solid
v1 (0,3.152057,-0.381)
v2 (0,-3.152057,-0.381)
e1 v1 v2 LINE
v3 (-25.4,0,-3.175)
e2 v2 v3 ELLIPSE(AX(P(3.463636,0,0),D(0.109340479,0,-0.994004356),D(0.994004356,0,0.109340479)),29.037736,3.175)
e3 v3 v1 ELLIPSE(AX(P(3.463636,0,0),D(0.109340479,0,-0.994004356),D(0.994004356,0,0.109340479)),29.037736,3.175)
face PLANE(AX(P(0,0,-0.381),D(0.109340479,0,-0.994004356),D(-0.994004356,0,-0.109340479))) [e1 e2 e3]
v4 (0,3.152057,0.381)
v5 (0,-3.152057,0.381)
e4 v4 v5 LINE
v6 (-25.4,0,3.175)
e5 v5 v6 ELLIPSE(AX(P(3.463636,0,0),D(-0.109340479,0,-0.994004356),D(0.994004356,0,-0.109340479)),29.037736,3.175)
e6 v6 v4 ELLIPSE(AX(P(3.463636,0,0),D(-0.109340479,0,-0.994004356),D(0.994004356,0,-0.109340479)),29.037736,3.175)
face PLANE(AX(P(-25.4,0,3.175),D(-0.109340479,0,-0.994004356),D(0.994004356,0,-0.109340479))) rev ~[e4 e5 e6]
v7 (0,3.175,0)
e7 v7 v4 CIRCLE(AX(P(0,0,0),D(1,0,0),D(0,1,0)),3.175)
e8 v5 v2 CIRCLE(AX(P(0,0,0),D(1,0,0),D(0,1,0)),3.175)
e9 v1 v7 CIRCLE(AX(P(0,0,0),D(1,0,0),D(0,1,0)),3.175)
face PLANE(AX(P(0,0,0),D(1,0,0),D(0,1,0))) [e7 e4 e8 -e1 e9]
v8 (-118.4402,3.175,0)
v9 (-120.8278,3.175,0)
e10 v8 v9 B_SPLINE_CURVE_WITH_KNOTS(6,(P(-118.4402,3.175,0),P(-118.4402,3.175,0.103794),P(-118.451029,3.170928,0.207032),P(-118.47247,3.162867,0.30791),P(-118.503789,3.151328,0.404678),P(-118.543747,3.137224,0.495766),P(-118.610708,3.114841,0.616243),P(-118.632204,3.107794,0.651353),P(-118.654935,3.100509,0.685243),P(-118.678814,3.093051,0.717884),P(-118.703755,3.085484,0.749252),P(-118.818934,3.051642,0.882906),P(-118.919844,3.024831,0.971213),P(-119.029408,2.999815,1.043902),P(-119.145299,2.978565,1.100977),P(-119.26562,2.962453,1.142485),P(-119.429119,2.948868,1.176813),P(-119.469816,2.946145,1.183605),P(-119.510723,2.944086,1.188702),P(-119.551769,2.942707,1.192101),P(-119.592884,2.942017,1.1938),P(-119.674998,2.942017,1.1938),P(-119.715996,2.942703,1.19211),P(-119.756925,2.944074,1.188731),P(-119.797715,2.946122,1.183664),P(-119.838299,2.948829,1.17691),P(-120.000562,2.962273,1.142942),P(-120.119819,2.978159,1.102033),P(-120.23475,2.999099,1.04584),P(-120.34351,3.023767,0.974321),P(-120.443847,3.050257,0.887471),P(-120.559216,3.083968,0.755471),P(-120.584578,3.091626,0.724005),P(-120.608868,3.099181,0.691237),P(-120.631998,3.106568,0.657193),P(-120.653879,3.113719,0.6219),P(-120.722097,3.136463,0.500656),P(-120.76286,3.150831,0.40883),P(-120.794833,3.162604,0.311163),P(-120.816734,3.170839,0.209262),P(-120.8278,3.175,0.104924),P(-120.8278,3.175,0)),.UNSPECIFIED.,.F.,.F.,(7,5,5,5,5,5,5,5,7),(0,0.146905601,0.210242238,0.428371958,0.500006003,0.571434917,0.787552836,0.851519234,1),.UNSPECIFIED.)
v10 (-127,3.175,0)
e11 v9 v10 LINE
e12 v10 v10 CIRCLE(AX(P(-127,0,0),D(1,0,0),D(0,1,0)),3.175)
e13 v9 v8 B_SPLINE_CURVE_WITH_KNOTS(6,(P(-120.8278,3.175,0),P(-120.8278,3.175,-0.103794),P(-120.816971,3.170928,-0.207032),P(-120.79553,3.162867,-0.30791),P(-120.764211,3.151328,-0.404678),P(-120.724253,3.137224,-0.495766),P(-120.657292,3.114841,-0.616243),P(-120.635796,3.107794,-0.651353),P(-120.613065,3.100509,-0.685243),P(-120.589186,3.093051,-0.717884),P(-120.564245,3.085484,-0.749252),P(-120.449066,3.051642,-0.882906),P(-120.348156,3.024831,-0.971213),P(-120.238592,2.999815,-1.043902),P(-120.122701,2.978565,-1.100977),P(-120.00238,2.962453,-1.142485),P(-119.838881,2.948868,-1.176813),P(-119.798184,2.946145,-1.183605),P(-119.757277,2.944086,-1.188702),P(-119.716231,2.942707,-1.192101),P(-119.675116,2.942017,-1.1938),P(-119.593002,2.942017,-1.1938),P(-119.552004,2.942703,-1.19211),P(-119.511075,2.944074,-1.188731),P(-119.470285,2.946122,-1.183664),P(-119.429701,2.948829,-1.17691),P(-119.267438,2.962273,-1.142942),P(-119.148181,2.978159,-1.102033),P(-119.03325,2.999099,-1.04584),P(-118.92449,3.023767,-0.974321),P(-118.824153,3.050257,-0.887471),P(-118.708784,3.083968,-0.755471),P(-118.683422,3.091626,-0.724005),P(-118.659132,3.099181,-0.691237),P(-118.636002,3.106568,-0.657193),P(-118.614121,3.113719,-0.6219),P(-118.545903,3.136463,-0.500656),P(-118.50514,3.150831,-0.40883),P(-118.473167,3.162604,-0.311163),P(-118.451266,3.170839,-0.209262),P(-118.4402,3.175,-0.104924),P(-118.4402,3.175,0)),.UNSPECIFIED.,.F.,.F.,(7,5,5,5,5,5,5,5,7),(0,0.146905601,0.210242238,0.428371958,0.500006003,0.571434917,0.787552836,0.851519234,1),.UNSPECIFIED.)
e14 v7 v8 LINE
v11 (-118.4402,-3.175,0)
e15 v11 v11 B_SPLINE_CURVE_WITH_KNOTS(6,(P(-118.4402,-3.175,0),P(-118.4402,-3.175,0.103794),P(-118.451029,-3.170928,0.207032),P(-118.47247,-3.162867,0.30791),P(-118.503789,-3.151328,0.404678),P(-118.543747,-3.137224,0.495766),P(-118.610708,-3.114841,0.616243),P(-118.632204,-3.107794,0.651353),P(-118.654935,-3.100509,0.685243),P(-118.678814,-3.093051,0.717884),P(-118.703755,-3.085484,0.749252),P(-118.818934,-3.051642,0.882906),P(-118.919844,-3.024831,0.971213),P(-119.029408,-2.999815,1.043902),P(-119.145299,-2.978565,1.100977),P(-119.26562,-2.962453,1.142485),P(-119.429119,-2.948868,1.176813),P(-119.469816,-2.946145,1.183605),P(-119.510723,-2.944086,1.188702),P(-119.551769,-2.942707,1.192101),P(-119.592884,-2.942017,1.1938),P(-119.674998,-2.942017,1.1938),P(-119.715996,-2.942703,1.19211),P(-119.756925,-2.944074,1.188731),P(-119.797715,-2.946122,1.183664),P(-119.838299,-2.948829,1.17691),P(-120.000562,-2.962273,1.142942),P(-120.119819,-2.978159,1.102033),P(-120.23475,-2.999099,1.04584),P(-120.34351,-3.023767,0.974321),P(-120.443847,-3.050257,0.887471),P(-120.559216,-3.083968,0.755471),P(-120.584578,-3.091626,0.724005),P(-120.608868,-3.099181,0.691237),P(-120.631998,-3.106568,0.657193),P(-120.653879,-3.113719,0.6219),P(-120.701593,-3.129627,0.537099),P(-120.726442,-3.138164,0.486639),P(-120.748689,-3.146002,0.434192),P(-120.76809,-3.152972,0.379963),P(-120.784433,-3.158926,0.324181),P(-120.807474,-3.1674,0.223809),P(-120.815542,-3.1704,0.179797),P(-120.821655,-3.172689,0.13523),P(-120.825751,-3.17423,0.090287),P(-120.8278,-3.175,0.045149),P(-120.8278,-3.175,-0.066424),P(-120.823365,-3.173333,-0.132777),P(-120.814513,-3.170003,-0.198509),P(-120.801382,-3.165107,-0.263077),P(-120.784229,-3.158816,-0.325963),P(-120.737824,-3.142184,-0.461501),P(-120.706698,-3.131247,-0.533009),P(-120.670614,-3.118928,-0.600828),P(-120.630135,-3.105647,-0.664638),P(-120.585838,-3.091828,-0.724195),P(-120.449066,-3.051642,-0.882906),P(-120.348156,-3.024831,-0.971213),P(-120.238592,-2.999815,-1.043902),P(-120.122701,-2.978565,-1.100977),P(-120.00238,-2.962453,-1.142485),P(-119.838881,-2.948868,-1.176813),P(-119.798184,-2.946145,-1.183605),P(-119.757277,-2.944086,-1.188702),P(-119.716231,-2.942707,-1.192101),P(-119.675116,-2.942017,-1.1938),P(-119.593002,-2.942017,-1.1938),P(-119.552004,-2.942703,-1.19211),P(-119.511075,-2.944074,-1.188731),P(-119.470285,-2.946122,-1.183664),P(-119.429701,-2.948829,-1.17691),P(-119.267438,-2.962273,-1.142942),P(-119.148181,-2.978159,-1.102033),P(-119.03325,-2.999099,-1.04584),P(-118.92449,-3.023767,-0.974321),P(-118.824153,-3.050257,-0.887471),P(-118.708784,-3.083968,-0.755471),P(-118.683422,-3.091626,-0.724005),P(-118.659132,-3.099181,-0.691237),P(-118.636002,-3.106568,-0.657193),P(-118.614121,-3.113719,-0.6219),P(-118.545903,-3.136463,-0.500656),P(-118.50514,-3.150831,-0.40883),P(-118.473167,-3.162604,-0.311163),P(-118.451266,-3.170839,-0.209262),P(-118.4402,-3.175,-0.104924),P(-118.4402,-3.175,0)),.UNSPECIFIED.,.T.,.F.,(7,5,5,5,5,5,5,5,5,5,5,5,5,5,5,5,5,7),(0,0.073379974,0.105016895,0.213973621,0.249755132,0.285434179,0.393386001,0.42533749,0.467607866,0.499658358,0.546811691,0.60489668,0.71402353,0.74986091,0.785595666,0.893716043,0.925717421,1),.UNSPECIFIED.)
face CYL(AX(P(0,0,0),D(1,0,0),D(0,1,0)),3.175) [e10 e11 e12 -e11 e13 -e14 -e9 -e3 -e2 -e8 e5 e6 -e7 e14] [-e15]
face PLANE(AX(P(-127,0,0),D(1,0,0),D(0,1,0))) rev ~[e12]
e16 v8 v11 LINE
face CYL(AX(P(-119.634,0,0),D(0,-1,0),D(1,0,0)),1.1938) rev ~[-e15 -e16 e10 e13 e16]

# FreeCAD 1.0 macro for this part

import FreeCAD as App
import Part
import Sketcher
from FreeCAD import Vector
Q = App.Units.Quantity

doc = App.newDocument("Part")
body = doc.addObject("PartDesign::Body", "Body")

# Sketch on YZ plane
sketch1 = doc.addObject("Sketcher::SketchObject", "Sketch")
body.addObject(sketch1)
sketch1.AttachmentSupport = (doc.YZ_Plane, [""])
sketch1.MapMode = "FlatFace"
sketch1.addGeometry(Part.Circle(Vector(0, 0, 0), Vector(0, 0, 1), 3.2), False)
sketch1.addConstraint(Sketcher.Constraint("Coincident", 0, 3, -1, 1))
sketch1.addConstraint(Sketcher.Constraint("Diameter", 0, Q("0.25 in")))
pad1 = doc.addObject("PartDesign::Pad", "Pad")
body.addObject(pad1)
pad1.Profile = sketch1
pad1.Length = Q("5 in")
pad1.Reversed = True

# Sketch on XZ plane
sketch2 = doc.addObject("Sketcher::SketchObject", "Sketch001")
body.addObject(sketch2)
sketch2.AttachmentSupport = (doc.XZ_Plane, [""])
sketch2.MapMode = "FlatFace"
sketch2.addGeometry(Part.LineSegment(Vector(0, -3.2, 0), Vector(0, -0.4, 0)), False)
sketch2.addGeometry(Part.LineSegment(Vector(0, -0.4, 0), Vector(-25.4, -3.2, 0)), False)
sketch2.addGeometry(Part.LineSegment(Vector(-25.4, -3.2, 0), Vector(0, -3.2, 0)), False)
sketch2.addGeometry(Part.LineSegment(Vector(-25.4, 3.2, 0), Vector(0, 0.4, 0)), False)
sketch2.addGeometry(Part.LineSegment(Vector(0, 0.4, 0), Vector(0, 3.2, 0)), False)
sketch2.addGeometry(Part.LineSegment(Vector(0, 3.2, 0), Vector(-25.4, 3.2, 0)), False)
sketch2.addConstraint(Sketcher.Constraint("Coincident", 0, 2, 1, 1))
sketch2.addConstraint(Sketcher.Constraint("Coincident", 1, 2, 2, 1))
sketch2.addConstraint(Sketcher.Constraint("Coincident", 2, 2, 0, 1))
sketch2.addConstraint(Sketcher.Constraint("Coincident", 3, 2, 4, 1))
sketch2.addConstraint(Sketcher.Constraint("Coincident", 4, 2, 5, 1))
sketch2.addConstraint(Sketcher.Constraint("Coincident", 5, 2, 3, 1))
sketch2.addConstraint(Sketcher.Constraint("Vertical", 0))
sketch2.addConstraint(Sketcher.Constraint("Horizontal", 2))
sketch2.addConstraint(Sketcher.Constraint("Vertical", 4))
sketch2.addConstraint(Sketcher.Constraint("Horizontal", 5))
sketch2.addConstraint(Sketcher.Constraint("Symmetric", 0, 2, 3, 2, -1, 1))
sketch2.addConstraint(Sketcher.Constraint("Symmetric", 2, 2, 4, 2, -1))
sketch2.addConstraint(Sketcher.Constraint("Vertical", 1, 2, 5, 2))
sketch2.addConstraint(Sketcher.Constraint("DistanceX", 2, 1, 2, 2, Q("1 in")))
sketch2.addConstraint(Sketcher.Constraint("DistanceY", 0, 1, 0, 2, Q("0.11 in")))
sketch2.addConstraint(Sketcher.Constraint("DistanceY", 0, 2, 3, 2, Q("0.03 in")))
pocket1 = doc.addObject("PartDesign::Pocket", "Pocket")
body.addObject(pocket1)
pocket1.Profile = sketch2
pocket1.Length = Q("1 in")
pocket1.Midplane = True

# Sketch on XZ plane
sketch3 = doc.addObject("Sketcher::SketchObject", "Sketch002")
body.addObject(sketch3)
sketch3.AttachmentSupport = (doc.XZ_Plane, [""])
sketch3.MapMode = "FlatFace"
sketch3.addGeometry(Part.Circle(Vector(-119.6, 0, 0), Vector(0, 0, 1), 1.2), False)
sketch3.addConstraint(Sketcher.Constraint("PointOnObject", 0, 3, -1))
sketch3.addConstraint(Sketcher.Constraint("Diameter", 0, Q("0.094 in")))
sketch3.addConstraint(Sketcher.Constraint("DistanceX", 0, 3, -1, 1, Q("4.71 in")))
pocket2 = doc.addObject("PartDesign::Pocket", "Pocket001")
body.addObject(pocket2)
pocket2.Profile = sketch3
pocket2.Length = Q("1 in")
pocket2.Midplane = True

doc.recompute()
